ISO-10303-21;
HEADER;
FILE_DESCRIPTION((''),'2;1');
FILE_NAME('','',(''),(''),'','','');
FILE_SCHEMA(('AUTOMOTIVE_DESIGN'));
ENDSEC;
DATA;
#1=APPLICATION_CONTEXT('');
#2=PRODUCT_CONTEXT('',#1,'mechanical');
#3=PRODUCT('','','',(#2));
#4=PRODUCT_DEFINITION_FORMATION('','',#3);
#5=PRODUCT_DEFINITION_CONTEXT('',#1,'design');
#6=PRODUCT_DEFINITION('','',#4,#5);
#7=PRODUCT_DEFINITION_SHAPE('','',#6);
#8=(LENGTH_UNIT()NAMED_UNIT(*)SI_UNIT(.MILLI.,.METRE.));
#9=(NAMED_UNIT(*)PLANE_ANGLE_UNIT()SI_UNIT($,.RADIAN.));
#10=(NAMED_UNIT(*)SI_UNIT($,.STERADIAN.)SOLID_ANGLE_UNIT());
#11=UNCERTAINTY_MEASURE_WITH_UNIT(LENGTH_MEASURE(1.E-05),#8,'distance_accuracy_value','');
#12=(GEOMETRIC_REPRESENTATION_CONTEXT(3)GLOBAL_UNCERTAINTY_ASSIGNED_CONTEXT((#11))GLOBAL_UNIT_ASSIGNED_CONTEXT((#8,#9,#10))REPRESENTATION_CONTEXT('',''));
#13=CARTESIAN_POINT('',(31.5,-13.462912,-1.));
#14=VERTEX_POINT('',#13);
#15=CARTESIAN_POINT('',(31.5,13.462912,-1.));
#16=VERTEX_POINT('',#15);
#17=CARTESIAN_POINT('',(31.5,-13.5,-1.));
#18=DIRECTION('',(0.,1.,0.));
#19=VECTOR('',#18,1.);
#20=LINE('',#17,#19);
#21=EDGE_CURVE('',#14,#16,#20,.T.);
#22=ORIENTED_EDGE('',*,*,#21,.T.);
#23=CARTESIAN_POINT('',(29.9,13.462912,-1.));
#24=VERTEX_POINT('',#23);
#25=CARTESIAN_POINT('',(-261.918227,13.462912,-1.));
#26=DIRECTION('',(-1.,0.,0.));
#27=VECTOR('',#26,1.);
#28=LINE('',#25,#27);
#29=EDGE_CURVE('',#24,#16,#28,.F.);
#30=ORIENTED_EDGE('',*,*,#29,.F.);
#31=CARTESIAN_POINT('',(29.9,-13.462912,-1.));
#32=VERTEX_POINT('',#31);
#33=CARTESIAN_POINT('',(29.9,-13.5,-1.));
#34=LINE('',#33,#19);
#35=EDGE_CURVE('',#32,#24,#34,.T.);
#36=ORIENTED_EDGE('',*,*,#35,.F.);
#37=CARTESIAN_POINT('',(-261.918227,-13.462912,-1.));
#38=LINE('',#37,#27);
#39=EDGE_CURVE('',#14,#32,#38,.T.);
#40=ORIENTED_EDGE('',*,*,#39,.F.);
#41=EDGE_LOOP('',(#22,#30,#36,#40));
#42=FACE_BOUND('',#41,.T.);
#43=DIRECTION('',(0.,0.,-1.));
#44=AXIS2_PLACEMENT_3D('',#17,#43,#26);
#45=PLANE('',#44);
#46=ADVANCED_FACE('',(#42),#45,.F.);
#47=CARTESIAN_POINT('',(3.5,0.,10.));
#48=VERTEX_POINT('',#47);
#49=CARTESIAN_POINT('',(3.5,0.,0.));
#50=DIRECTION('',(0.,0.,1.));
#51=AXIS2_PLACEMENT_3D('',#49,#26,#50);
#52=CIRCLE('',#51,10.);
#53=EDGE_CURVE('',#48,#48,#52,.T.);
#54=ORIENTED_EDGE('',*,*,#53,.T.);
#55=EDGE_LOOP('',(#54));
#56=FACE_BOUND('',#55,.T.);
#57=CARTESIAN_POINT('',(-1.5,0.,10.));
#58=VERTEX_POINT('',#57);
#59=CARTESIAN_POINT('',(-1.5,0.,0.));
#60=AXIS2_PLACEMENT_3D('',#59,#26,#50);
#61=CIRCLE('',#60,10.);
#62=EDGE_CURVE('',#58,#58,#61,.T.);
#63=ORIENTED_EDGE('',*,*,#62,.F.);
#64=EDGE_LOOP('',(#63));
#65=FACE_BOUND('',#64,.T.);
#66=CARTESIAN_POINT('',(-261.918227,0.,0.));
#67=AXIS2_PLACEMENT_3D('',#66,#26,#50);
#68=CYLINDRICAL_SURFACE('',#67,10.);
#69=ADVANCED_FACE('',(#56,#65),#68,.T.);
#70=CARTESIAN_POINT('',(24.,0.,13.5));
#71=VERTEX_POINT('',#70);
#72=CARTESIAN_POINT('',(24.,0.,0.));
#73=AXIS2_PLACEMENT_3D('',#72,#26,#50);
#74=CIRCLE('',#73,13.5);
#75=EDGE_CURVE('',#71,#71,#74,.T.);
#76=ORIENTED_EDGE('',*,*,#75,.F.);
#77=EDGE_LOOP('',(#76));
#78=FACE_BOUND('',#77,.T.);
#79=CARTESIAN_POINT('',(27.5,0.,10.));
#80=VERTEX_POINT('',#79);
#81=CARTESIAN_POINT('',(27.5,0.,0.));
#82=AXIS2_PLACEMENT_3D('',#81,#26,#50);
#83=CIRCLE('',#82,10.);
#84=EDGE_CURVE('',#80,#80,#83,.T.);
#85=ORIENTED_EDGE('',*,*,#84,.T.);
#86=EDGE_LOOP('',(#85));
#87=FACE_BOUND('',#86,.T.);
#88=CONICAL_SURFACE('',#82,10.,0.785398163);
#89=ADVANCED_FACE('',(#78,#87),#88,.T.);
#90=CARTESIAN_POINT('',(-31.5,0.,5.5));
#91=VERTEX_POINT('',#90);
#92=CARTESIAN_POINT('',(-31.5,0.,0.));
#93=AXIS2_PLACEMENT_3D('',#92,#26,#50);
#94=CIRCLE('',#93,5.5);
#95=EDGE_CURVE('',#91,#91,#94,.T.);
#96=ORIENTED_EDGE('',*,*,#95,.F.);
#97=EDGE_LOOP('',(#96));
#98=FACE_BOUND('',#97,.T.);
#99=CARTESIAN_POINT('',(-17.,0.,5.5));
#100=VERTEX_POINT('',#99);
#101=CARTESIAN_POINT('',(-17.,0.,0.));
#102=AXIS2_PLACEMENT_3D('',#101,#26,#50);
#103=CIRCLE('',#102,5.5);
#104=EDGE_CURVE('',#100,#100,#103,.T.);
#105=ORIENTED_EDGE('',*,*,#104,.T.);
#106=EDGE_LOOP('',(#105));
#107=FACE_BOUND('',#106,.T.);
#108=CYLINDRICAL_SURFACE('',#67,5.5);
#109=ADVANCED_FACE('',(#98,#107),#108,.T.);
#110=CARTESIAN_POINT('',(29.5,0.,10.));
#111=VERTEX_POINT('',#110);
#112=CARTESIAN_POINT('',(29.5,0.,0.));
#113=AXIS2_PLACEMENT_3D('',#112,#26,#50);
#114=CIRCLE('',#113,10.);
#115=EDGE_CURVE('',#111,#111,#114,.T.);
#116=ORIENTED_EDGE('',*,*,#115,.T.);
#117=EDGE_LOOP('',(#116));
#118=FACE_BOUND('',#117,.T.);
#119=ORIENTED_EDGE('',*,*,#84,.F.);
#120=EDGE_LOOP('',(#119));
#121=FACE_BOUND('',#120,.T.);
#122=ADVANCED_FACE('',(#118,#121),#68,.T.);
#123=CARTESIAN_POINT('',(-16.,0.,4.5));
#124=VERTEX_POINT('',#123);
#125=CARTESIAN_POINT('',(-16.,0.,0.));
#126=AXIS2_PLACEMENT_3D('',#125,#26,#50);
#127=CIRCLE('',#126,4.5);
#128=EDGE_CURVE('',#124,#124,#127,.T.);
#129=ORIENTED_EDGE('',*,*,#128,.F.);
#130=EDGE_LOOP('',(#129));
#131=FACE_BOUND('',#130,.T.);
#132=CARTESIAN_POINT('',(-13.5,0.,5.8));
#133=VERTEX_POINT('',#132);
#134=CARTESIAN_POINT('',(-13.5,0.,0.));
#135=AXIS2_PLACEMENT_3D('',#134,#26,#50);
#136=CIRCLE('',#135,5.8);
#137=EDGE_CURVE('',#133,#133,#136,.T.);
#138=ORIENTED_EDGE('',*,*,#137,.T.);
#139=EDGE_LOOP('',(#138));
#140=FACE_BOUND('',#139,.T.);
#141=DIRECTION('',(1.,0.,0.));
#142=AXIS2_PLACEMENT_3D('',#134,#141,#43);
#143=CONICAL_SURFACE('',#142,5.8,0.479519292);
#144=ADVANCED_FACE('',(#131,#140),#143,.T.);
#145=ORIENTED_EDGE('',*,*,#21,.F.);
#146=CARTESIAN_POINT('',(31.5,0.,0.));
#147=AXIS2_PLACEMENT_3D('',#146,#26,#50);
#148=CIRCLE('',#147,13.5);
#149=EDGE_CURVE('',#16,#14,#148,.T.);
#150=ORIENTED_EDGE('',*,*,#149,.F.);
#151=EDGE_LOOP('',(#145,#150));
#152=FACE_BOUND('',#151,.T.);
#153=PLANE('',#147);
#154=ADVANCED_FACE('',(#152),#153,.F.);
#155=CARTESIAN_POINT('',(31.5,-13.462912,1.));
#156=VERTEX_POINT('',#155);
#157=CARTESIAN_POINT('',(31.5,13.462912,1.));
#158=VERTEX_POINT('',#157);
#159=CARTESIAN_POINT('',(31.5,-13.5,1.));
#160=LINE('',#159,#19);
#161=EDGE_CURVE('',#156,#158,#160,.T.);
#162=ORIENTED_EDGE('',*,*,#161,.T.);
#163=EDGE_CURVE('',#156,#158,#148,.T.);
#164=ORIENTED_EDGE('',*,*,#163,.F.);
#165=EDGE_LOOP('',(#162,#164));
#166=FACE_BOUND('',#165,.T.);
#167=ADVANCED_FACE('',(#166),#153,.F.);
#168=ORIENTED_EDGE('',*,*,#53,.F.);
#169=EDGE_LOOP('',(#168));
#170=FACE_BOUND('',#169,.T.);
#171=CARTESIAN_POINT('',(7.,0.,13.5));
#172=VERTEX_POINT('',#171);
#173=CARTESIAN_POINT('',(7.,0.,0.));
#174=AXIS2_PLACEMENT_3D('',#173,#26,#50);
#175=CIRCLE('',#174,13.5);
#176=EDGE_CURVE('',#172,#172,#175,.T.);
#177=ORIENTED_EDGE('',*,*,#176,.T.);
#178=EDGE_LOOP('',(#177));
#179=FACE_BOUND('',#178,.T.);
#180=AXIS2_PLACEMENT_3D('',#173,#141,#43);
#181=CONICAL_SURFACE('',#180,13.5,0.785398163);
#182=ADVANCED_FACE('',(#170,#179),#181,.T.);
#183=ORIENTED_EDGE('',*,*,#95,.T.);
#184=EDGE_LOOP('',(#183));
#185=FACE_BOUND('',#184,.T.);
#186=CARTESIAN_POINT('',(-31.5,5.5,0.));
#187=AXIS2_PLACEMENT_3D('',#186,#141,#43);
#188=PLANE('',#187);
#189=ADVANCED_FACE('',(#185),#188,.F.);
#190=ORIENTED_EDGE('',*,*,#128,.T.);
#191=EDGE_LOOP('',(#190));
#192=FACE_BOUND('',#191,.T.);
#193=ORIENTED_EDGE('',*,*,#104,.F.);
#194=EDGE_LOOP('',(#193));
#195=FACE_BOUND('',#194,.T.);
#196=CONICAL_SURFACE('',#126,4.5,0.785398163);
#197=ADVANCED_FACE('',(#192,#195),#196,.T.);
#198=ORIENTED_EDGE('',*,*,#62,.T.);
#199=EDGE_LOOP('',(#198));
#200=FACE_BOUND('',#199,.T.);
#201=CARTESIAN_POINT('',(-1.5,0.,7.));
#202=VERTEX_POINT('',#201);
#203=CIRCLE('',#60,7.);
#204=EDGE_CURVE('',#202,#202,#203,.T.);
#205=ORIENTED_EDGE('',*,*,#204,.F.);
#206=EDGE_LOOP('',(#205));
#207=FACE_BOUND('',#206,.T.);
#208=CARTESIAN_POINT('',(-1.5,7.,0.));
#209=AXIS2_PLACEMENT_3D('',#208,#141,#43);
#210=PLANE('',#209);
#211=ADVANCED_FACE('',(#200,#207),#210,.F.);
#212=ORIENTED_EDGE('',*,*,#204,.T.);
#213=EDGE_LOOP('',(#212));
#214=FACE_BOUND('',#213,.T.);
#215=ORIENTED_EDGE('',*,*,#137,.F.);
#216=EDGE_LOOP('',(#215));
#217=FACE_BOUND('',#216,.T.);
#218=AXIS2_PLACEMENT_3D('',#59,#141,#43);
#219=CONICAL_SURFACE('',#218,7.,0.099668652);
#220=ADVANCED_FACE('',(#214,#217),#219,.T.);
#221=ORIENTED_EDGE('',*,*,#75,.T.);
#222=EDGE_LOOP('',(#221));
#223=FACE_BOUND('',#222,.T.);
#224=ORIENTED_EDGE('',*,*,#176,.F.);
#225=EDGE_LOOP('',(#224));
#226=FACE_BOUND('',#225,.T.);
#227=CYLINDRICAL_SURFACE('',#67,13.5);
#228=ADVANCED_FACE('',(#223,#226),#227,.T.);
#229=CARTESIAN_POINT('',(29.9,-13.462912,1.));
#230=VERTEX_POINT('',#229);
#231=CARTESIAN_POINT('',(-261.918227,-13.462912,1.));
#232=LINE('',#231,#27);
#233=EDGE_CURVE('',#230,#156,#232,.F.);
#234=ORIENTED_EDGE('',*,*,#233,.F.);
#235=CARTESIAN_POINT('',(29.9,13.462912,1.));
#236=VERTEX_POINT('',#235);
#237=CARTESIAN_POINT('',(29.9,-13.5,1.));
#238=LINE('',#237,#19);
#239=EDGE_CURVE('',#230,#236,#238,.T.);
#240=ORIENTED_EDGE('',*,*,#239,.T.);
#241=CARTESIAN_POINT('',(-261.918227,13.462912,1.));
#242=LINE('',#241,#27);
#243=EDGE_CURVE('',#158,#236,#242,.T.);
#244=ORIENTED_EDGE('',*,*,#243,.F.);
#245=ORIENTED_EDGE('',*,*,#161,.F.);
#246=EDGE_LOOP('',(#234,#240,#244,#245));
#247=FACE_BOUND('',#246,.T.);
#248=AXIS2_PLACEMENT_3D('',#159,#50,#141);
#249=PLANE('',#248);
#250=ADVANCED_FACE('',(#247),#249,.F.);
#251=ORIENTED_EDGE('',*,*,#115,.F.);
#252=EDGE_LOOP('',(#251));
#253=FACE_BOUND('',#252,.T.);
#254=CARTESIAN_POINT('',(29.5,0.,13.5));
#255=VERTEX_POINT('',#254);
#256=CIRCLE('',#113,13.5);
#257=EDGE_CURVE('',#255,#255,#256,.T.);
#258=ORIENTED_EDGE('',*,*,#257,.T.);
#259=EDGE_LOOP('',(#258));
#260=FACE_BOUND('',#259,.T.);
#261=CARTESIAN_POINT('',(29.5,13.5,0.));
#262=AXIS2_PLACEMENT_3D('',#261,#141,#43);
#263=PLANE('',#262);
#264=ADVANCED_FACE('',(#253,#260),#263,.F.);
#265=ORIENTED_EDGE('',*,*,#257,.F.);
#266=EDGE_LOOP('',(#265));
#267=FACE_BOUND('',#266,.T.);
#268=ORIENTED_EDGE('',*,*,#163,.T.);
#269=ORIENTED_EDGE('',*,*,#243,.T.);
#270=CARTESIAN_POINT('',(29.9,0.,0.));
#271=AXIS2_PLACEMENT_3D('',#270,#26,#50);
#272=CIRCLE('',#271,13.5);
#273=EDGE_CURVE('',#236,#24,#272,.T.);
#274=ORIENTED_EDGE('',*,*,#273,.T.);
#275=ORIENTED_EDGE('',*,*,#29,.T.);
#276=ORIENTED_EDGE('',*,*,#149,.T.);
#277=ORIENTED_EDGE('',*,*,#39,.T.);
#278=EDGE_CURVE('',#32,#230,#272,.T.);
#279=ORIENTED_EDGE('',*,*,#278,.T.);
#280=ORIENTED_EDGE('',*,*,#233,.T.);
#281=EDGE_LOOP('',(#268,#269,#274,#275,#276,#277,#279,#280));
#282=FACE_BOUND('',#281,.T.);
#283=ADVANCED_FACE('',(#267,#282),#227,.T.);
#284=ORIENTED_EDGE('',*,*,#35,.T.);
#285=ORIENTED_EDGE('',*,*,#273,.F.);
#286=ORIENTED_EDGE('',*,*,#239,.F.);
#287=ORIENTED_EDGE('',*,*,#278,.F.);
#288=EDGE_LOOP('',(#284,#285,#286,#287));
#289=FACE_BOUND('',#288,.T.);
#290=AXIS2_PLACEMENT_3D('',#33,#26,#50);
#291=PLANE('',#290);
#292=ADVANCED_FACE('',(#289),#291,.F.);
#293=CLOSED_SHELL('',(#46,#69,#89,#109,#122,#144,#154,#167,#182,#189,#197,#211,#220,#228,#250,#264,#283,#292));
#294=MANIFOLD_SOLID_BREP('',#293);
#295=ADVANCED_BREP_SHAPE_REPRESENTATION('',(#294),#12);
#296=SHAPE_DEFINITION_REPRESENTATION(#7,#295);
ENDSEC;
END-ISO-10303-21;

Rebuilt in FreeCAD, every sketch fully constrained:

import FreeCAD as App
import Part
import Sketcher
from FreeCAD import Vector
Q = App.Units.Quantity


def add_polygon(sketch, points):
    """Adds a closed chain of lines whose ends are joined by coincident constraints."""
    first, n = sketch.GeometryCount, len(points)
    for a, b in zip(points, points[1:] + points[:1]):
        sketch.addGeometry(Part.LineSegment(App.Vector(*a, 0), App.Vector(*b, 0)), False)
    for i in range(n):
        sketch.addConstraint(Sketcher.Constraint("Coincident", first + i, 2, first + (i + 1) % n, 1))

doc = App.newDocument("Part")
params = doc.addObject("Spreadsheet::Sheet", "Params")
for row, (alias, value) in enumerate([
    ("sketch1_width", "63 mm"),
    ("sketch1_width2", "2 mm"),
    ("sketch1_width3", "17 mm"),
    ("sketch1_width4", "5 mm"),
    ("sketch1_height", "3 mm"),
    ("revolution_angle", "360 deg"),
    ("sketch2_height", "2 mm"),
    ("sketch2_width", "1.6 mm"),
], start=1):
    params.set(f"A{row}", alias)
    params.set(f"B{row}", "=" + value)
    params.setAlias(f"B{row}", alias)

body = doc.addObject("PartDesign::Body", "Body")

# Sketch on XY plane
sketch1 = body.newObject("Sketcher::SketchObject", "Sketch")
sketch1.AttachmentSupport = (doc.getObject("XY_Plane"), [""])
sketch1.MapMode = "FlatFace"
add_polygon(sketch1, [(-31.5, 0), (31.5, 0), (31.5, 13.5), (29.5, 13.5), (29.5, 10), (27.5, 10), (24, 13.5), (7, 13.5), (3.5, 10), (-1.5, 10), (-1.5, 7), (-13.5, 5.8), (-16, 4.5), (-17, 5.5), (-31.5, 5.5)])  # lines 0-14
sketch1.addConstraint([
    Sketcher.Constraint("Horizontal", 0),
    Sketcher.Constraint("Vertical", 1),
    Sketcher.Constraint("Horizontal", 2),
    Sketcher.Constraint("Vertical", 3),
    Sketcher.Constraint("Horizontal", 4),
    Sketcher.Constraint("Horizontal", 6),
    Sketcher.Constraint("Horizontal", 8),
    Sketcher.Constraint("Vertical", 9),
    Sketcher.Constraint("Horizontal", 13),
    Sketcher.Constraint("Vertical", 14),
    Sketcher.Constraint("Symmetric", 0, 2, 14, 2, -1, 1),
    Sketcher.Constraint("Perpendicular", 5, 7),
    Sketcher.Constraint("Perpendicular", 7, 12),
    Sketcher.Constraint("Horizontal", 2, 2, 5, 2),
    Sketcher.Constraint("Horizontal", 4, 2, 7, 2),
    Sketcher.Constraint("Equal", 2, 4),
    Sketcher.Constraint("Equal", 5, 7),
    Sketcher.Constraint("DistanceX", 0, 1, 0, 2, Q("63 mm")),
    Sketcher.Constraint("DistanceX", 2, 2, 2, 1, Q("2 mm")),
    Sketcher.Constraint("DistanceX", 6, 2, 6, 1, Q("17 mm")),
    Sketcher.Constraint("DistanceX", 8, 2, 8, 1, Q("5 mm")),
    Sketcher.Constraint("DistanceY", 9, 2, 9, 1, Q("3 mm")),
    Sketcher.Constraint("DistanceX", 13, 2, 13, 1, Q("14.5 mm")),
    Sketcher.Constraint("DistanceY", 1, 1, 1, 2, Q("13.5 mm")),
    Sketcher.Constraint("DistanceY", 3, 2, 3, 1, Q("3.5 mm")),
    Sketcher.Constraint("DistanceY", 14, 2, 14, 1, Q("5.5 mm")),
    Sketcher.Constraint("DistanceX", 11, 2, -1, 1, Q("16 mm")),
    Sketcher.Constraint("DistanceX", 10, 2, 9, 2, Q("12 mm")),
    Sketcher.Constraint("DistanceY", -1, 1, 10, 2, Q("5.8 mm")),
])
sketch1.setExpression("Constraints[32]", "Params.sketch1_width")
sketch1.setExpression("Constraints[33]", "Params.sketch1_width2")
sketch1.setExpression("Constraints[34]", "Params.sketch1_width3")
sketch1.setExpression("Constraints[35]", "Params.sketch1_width4")
sketch1.setExpression("Constraints[36]", "Params.sketch1_height")
revolution = body.newObject("PartDesign::Revolution", "Revolution")
revolution.Profile = sketch1
revolution.ReferenceAxis = (sketch1, ["H_Axis"])
revolution.setExpression("Angle", "Params.revolution_angle")

# Sketch on XZ plane
sketch2 = body.newObject("Sketcher::SketchObject", "Sketch001")
sketch2.AttachmentSupport = (doc.getObject("XZ_Plane"), [""])
sketch2.MapMode = "FlatFace"
add_polygon(sketch2, [(29.9, -1), (29.9, 1), (31.5, 1), (31.5, -1)])  # lines 0-3
sketch2.addConstraint([
    Sketcher.Constraint("Vertical", 0),
    Sketcher.Constraint("Horizontal", 1),
    Sketcher.Constraint("Vertical", 2),
    Sketcher.Constraint("Horizontal", 3),
    Sketcher.Constraint("DistanceY", 0, 1, 0, 2, Q("2 mm")),
    Sketcher.Constraint("DistanceX", 1, 1, 1, 2, Q("1.6 mm")),
    Sketcher.Constraint("DistanceY", -1, 1, 0, 2, Q("1 mm")),
    Sketcher.Constraint("DistanceX", -1, 1, 0, 2, Q("29.9 mm")),
])
sketch2.setExpression("Constraints[8]", "Params.sketch2_height")
sketch2.setExpression("Constraints[9]", "Params.sketch2_width")
pocket1 = body.newObject("PartDesign::Pocket", "Pocket")
pocket1.Profile = sketch2
pocket1.Type = "ThroughAll"
pocket1.Midplane = True

doc.recompute()
